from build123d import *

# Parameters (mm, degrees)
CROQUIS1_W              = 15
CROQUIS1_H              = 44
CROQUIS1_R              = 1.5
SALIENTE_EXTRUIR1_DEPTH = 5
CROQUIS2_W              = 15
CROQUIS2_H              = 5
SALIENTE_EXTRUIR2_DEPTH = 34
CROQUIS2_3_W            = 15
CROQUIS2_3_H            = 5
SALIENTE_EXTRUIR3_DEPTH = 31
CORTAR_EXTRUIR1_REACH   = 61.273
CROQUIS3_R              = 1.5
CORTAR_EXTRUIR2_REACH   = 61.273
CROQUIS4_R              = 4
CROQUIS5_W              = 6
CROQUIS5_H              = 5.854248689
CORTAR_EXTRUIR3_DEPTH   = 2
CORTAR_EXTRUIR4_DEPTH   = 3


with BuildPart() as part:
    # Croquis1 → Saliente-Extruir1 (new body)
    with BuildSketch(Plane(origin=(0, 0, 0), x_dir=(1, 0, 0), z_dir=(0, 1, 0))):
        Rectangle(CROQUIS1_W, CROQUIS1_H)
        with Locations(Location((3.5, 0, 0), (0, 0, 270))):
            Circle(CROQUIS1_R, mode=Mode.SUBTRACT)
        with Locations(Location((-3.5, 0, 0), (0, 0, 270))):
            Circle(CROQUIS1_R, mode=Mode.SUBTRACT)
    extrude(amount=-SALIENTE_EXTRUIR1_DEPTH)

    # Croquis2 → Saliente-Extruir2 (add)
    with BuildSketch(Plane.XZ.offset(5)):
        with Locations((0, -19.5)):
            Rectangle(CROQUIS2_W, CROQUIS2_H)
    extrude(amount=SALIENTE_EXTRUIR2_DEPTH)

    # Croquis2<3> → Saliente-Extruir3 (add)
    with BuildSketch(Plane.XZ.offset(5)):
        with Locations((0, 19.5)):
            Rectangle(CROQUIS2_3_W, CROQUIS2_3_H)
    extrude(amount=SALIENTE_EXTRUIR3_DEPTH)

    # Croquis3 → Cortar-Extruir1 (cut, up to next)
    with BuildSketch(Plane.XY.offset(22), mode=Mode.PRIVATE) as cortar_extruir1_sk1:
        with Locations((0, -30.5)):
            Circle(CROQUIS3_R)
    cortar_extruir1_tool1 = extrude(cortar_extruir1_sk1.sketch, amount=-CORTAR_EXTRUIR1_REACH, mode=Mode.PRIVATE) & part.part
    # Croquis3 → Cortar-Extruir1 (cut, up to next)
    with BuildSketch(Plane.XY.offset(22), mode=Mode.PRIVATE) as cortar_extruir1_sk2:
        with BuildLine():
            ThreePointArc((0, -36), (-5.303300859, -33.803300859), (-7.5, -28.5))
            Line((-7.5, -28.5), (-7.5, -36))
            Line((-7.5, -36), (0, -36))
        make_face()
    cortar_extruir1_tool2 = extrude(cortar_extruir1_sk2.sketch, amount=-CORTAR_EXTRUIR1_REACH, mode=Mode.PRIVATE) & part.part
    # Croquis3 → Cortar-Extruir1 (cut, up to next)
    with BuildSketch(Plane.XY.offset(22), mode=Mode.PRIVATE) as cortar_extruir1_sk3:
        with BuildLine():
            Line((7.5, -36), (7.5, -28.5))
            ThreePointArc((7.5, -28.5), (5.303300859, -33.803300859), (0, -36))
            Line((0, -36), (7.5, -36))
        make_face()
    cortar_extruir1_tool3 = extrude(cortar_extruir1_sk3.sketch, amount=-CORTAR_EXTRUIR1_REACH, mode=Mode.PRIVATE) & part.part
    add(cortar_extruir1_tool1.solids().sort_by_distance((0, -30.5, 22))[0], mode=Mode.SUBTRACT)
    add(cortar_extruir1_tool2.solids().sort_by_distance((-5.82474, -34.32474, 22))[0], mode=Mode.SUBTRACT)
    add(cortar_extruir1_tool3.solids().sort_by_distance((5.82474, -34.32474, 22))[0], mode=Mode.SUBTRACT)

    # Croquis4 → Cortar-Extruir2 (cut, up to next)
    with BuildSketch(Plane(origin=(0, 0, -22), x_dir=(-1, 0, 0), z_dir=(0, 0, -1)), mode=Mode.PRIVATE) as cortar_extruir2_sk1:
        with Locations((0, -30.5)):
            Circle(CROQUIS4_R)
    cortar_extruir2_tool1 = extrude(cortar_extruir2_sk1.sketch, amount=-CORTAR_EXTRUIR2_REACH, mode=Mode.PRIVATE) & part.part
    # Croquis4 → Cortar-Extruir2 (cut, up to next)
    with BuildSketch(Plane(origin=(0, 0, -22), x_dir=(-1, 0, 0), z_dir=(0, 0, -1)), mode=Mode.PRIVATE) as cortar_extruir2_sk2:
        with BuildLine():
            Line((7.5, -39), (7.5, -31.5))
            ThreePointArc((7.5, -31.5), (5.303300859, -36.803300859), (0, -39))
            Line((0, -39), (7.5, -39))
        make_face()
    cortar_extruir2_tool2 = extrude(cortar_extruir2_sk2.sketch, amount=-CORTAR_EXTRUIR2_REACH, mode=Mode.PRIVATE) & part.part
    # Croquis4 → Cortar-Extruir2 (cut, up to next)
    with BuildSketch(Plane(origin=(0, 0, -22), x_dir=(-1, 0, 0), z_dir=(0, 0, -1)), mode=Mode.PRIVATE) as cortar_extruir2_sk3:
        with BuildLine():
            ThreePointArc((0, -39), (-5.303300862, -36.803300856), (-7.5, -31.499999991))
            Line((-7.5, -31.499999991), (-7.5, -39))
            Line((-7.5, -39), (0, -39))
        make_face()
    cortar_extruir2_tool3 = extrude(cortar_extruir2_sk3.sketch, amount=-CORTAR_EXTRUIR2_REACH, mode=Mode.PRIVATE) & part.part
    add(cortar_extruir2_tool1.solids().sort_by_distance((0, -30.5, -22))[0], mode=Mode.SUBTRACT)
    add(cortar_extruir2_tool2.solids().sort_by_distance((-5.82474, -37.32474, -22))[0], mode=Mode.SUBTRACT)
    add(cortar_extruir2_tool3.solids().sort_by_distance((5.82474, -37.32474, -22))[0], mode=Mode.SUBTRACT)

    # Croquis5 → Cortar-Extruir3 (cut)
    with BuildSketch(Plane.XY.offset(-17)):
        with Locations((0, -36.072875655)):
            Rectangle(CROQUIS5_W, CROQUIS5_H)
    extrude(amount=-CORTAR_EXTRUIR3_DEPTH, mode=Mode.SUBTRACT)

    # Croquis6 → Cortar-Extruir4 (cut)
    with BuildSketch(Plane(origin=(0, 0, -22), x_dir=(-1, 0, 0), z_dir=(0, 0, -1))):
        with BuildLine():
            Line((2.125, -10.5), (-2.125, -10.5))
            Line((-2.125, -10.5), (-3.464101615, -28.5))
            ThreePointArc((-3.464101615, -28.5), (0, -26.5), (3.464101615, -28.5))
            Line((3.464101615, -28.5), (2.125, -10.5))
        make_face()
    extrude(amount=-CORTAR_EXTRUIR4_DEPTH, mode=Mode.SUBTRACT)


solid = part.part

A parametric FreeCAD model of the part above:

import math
import FreeCAD as App
import Part
import Sketcher

V = App.Vector

doc = App.newDocument("Part")
body = doc.addObject("PartDesign::Body", "Body")

sketch1 = body.newObject("Sketcher::SketchObject", "Sketch")
sketch1.AttachmentSupport = (doc.getObject("XZ_Plane"), [""])
sketch1.MapMode = "FlatFace"
sketch1.addGeometry(Part.LineSegment(V(-7.5, -22, 0), V(-7.5, 22, 0)), False)
sketch1.addGeometry(Part.LineSegment(V(-7.5, 22, 0), V(7.5, 22, 0)), False)
sketch1.addGeometry(Part.LineSegment(V(7.5, 22, 0), V(7.5, -22, 0)), False)
sketch1.addGeometry(Part.LineSegment(V(7.5, -22, 0), V(-7.5, -22, 0)), False)
sketch1.addGeometry(Part.Circle(V(-3.5, 0, 0), V(0, 0, 1), 1.5), False)
sketch1.addGeometry(Part.Circle(V(3.5, 0, 0), V(0, 0, 1), 1.5), False)
sketch1.addConstraint(Sketcher.Constraint("Coincident", 0, 2, 1, 1))
sketch1.addConstraint(Sketcher.Constraint("Coincident", 1, 2, 2, 1))
sketch1.addConstraint(Sketcher.Constraint("Coincident", 2, 2, 3, 1))
sketch1.addConstraint(Sketcher.Constraint("Coincident", 3, 2, 0, 1))
sketch1.addConstraint(Sketcher.Constraint("Vertical", 0))
sketch1.addConstraint(Sketcher.Constraint("Horizontal", 1))
sketch1.addConstraint(Sketcher.Constraint("Vertical", 2))
sketch1.addConstraint(Sketcher.Constraint("Horizontal", 3))
sketch1.addConstraint(Sketcher.Constraint("Equal", 4, 5))
sketch1.addConstraint(Sketcher.Constraint("Symmetric", 4, 3, 5, 3, -1, 1))
sketch1.addConstraint(Sketcher.Constraint("Symmetric", 0, 2, 2, 2, -1, 1))
sketch1.addConstraint(Sketcher.Constraint("PointOnObject", 4, 3, -1))
sketch1.addConstraint(Sketcher.Constraint("Diameter", 4, 3.0))
sketch1.addConstraint(Sketcher.Constraint("DistanceX", 1, 1, 1, 2, 15.0))
sketch1.addConstraint(Sketcher.Constraint("DistanceY", 0, 1, 0, 2, 44.0))
sketch1.addConstraint(Sketcher.Constraint("DistanceX", 4, 3, 5, 3, 7.0))
pad1 = body.newObject("PartDesign::Pad", "Pad")
pad1.Profile = sketch1
pad1.Length = 5

sketch2 = body.newObject("Sketcher::SketchObject", "Sketch001")
sketch2.AttachmentSupport = (doc.getObject("XZ_Plane"), [""])
sketch2.MapMode = "FlatFace"
sketch2.AttachmentOffset = App.Placement(V(0, 0, 5), App.Rotation())
sketch2.addGeometry(Part.LineSegment(V(-7.5, -17, 0), V(-7.5, -22, 0)), False)
sketch2.addGeometry(Part.LineSegment(V(-7.5, -22, 0), V(7.5, -22, 0)), False)
sketch2.addGeometry(Part.LineSegment(V(7.5, -22, 0), V(7.5, -17, 0)), False)
sketch2.addGeometry(Part.LineSegment(V(7.5, -17, 0), V(-7.5, -17, 0)), False)
sketch2.addConstraint(Sketcher.Constraint("Coincident", 0, 2, 1, 1))
sketch2.addConstraint(Sketcher.Constraint("Coincident", 1, 2, 2, 1))
sketch2.addConstraint(Sketcher.Constraint("Coincident", 2, 2, 3, 1))
sketch2.addConstraint(Sketcher.Constraint("Coincident", 3, 2, 0, 1))
sketch2.addConstraint(Sketcher.Constraint("Vertical", 0))
sketch2.addConstraint(Sketcher.Constraint("Horizontal", 1))
sketch2.addConstraint(Sketcher.Constraint("Vertical", 2))
sketch2.addConstraint(Sketcher.Constraint("Horizontal", 3))
sketch2.addConstraint(Sketcher.Constraint("DistanceX", 1, 1, 1, 2, 15.0))
sketch2.addConstraint(Sketcher.Constraint("DistanceY", 0, 2, 0, 1, 5.0))
sketch2.addConstraint(Sketcher.Constraint("DistanceY", 0, 2, -1, 1, 22.0))
sketch2.addConstraint(Sketcher.Constraint("DistanceX", 0, 2, -1, 1, 7.5))
pad2 = body.newObject("PartDesign::Pad", "Pad001")
pad2.Profile = sketch2
pad2.Length = 34

sketch3 = body.newObject("Sketcher::SketchObject", "Sketch002")
sketch3.AttachmentSupport = (doc.getObject("XZ_Plane"), [""])
sketch3.MapMode = "FlatFace"
sketch3.AttachmentOffset = App.Placement(V(0, 0, 5), App.Rotation())
sketch3.addGeometry(Part.LineSegment(V(-7.5, 22, 0), V(-7.5, 17, 0)), False)
sketch3.addGeometry(Part.LineSegment(V(-7.5, 17, 0), V(7.5, 17, 0)), False)
sketch3.addGeometry(Part.LineSegment(V(7.5, 17, 0), V(7.5, 22, 0)), False)
sketch3.addGeometry(Part.LineSegment(V(7.5, 22, 0), V(-7.5, 22, 0)), False)
sketch3.addConstraint(Sketcher.Constraint("Coincident", 0, 2, 1, 1))
sketch3.addConstraint(Sketcher.Constraint("Coincident", 1, 2, 2, 1))
sketch3.addConstraint(Sketcher.Constraint("Coincident", 2, 2, 3, 1))
sketch3.addConstraint(Sketcher.Constraint("Coincident", 3, 2, 0, 1))
sketch3.addConstraint(Sketcher.Constraint("Vertical", 0))
sketch3.addConstraint(Sketcher.Constraint("Horizontal", 1))
sketch3.addConstraint(Sketcher.Constraint("Vertical", 2))
sketch3.addConstraint(Sketcher.Constraint("Horizontal", 3))
sketch3.addConstraint(Sketcher.Constraint("DistanceX", 1, 1, 1, 2, 15.0))
sketch3.addConstraint(Sketcher.Constraint("DistanceY", 0, 2, 0, 1, 5.0))
sketch3.addConstraint(Sketcher.Constraint("DistanceY", -1, 1, 0, 2, 17.0))
sketch3.addConstraint(Sketcher.Constraint("DistanceX", 0, 2, -1, 1, 7.5))
pad3 = body.newObject("PartDesign::Pad", "Pad002")
pad3.Profile = sketch3
pad3.Length = 31

sketch4 = body.newObject("Sketcher::SketchObject", "Sketch003")
sketch4.AttachmentSupport = (doc.getObject("XY_Plane"), [""])
sketch4.MapMode = "FlatFace"
sketch4.AttachmentOffset = App.Placement(V(0, 0, 22), App.Rotation())
sketch4.addGeometry(Part.Circle(V(0, -30.5, 0), V(0, 0, 1), 1.5), False)
sketch4.addConstraint(Sketcher.Constraint("PointOnObject", 0, 3, -2))
sketch4.addConstraint(Sketcher.Constraint("Diameter", 0, 3.0))
sketch4.addConstraint(Sketcher.Constraint("DistanceY", 0, 3, -1, 1, 30.5))
pocket1 = body.newObject("PartDesign::Pocket", "Pocket")
pocket1.Profile = sketch4
pocket1.Type = "UpToFirst"

sketch5 = body.newObject("Sketcher::SketchObject", "Sketch004")
sketch5.AttachmentSupport = (doc.getObject("XY_Plane"), [""])
sketch5.MapMode = "FlatFace"
sketch5.AttachmentOffset = App.Placement(V(0, 0, 22), App.Rotation())
sketch5.addGeometry(Part.ArcOfCircle(Part.Circle(V(0, -28.5, 0), V(0, 0, 1), 7.5), math.radians(180), math.radians(270)), False)
sketch5.addGeometry(Part.LineSegment(V(-7.5, -28.5, 0), V(-7.5, -36, 0)), False)
sketch5.addGeometry(Part.LineSegment(V(-7.5, -36, 0), V(0, -36, 0)), False)
sketch5.addConstraint(Sketcher.Constraint("Tangent", 0, 1, 1, 1))
sketch5.addConstraint(Sketcher.Constraint("Coincident", 1, 2, 2, 1))
sketch5.addConstraint(Sketcher.Constraint("Tangent", 2, 2, 0, 2))
sketch5.addConstraint(Sketcher.Constraint("Vertical", 1))
sketch5.addConstraint(Sketcher.Constraint("Horizontal", 2))
sketch5.addConstraint(Sketcher.Constraint("PointOnObject", 0, 3, -2))
sketch5.addConstraint(Sketcher.Constraint("Radius", 0, 7.5))
sketch5.addConstraint(Sketcher.Constraint("DistanceY", 1, 2, -1, 1, 36.0))
pocket2 = body.newObject("PartDesign::Pocket", "Pocket001")
pocket2.Profile = sketch5
pocket2.Type = "UpToFirst"

sketch6 = body.newObject("Sketcher::SketchObject", "Sketch005")
sketch6.AttachmentSupport = (doc.getObject("XY_Plane"), [""])
sketch6.MapMode = "FlatFace"
sketch6.AttachmentOffset = App.Placement(V(0, 0, 22), App.Rotation())
sketch6.addGeometry(Part.LineSegment(V(7.5, -36, 0), V(7.5, -28.5, 0)), False)
sketch6.addGeometry(Part.ArcOfCircle(Part.Circle(V(0, -28.5, 0), V(0, 0, 1), 7.5), math.radians(-90), math.radians(0)), False)
sketch6.addGeometry(Part.LineSegment(V(0, -36, 0), V(7.5, -36, 0)), False)
sketch6.addConstraint(Sketcher.Constraint("Tangent", 0, 2, 1, 2))
sketch6.addConstraint(Sketcher.Constraint("Tangent", 1, 1, 2, 1))
sketch6.addConstraint(Sketcher.Constraint("Coincident", 2, 2, 0, 1))
sketch6.addConstraint(Sketcher.Constraint("Vertical", 0))
sketch6.addConstraint(Sketcher.Constraint("Horizontal", 2))
sketch6.addConstraint(Sketcher.Constraint("PointOnObject", 1, 3, -2))
sketch6.addConstraint(Sketcher.Constraint("Radius", 1, 7.5))
sketch6.addConstraint(Sketcher.Constraint("DistanceY", 1, 1, -1, 1, 36.0))
pocket3 = body.newObject("PartDesign::Pocket", "Pocket002")
pocket3.Profile = sketch6
pocket3.Type = "UpToFirst"

sketch7 = body.newObject("Sketcher::SketchObject", "Sketch006")
sketch7.AttachmentSupport = (doc.getObject("XY_Plane"), [""])
sketch7.MapMode = "FlatFace"
sketch7.AttachmentOffset = App.Placement(V(0, 0, -22), App.Rotation())
sketch7.addGeometry(Part.Circle(V(0, -30.5, 0), V(0, 0, 1), 4), False)
sketch7.addConstraint(Sketcher.Constraint("PointOnObject", 0, 3, -2))
sketch7.addConstraint(Sketcher.Constraint("Diameter", 0, 8.0))
sketch7.addConstraint(Sketcher.Constraint("DistanceY", 0, 3, -1, 1, 30.5))
pocket4 = body.newObject("PartDesign::Pocket", "Pocket003")
pocket4.Profile = sketch7
pocket4.Type = "UpToFirst"
pocket4.Reversed = True

sketch8 = body.newObject("Sketcher::SketchObject", "Sketch007")
sketch8.AttachmentSupport = (doc.getObject("XY_Plane"), [""])
sketch8.MapMode = "FlatFace"
sketch8.AttachmentOffset = App.Placement(V(0, 0, -22), App.Rotation())
sketch8.addGeometry(Part.LineSegment(V(-7.5, -39, 0), V(-7.5, -31.5, 0)), False)
sketch8.addGeometry(Part.ArcOfCircle(Part.Circle(V(0, -31.5, 0), V(0, 0, 1), 7.5), math.radians(180), math.radians(270)), False)
sketch8.addGeometry(Part.LineSegment(V(0, -39, 0), V(-7.5, -39, 0)), False)
sketch8.addConstraint(Sketcher.Constraint("Tangent", 0, 2, 1, 1))
sketch8.addConstraint(Sketcher.Constraint("Tangent", 1, 2, 2, 1))
sketch8.addConstraint(Sketcher.Constraint("Coincident", 2, 2, 0, 1))
sketch8.addConstraint(Sketcher.Constraint("Vertical", 0))
sketch8.addConstraint(Sketcher.Constraint("Horizontal", 2))
sketch8.addConstraint(Sketcher.Constraint("PointOnObject", 1, 3, -2))
sketch8.addConstraint(Sketcher.Constraint("Radius", 1, 7.5))
sketch8.addConstraint(Sketcher.Constraint("DistanceY", 1, 2, -1, 1, 39.0))
pocket5 = body.newObject("PartDesign::Pocket", "Pocket004")
pocket5.Profile = sketch8
pocket5.Type = "UpToFirst"
pocket5.Reversed = True

sketch9 = body.newObject("Sketcher::SketchObject", "Sketch008")
sketch9.AttachmentSupport = (doc.getObject("XY_Plane"), [""])
sketch9.MapMode = "FlatFace"
sketch9.AttachmentOffset = App.Placement(V(0, 0, -22), App.Rotation())
sketch9.addGeometry(Part.ArcOfCircle(Part.Circle(V(0, -31.5, 0), V(0, 0, 1), 7.5), math.radians(-90), math.radians(0)), False)
sketch9.addGeometry(Part.LineSegment(V(7.5, -31.5, 0), V(7.5, -39, 0)), False)
sketch9.addGeometry(Part.LineSegment(V(7.5, -39, 0), V(0, -39, 0)), False)
sketch9.addConstraint(Sketcher.Constraint("Tangent", 0, 2, 1, 1))
sketch9.addConstraint(Sketcher.Constraint("Coincident", 1, 2, 2, 1))
sketch9.addConstraint(Sketcher.Constraint("Tangent", 2, 2, 0, 1))
sketch9.addConstraint(Sketcher.Constraint("Vertical", 1))
sketch9.addConstraint(Sketcher.Constraint("Horizontal", 2))
sketch9.addConstraint(Sketcher.Constraint("PointOnObject", 0, 3, -2))
sketch9.addConstraint(Sketcher.Constraint("Radius", 0, 7.5))
sketch9.addConstraint(Sketcher.Constraint("DistanceY", 1, 2, -1, 1, 39.0))
pocket6 = body.newObject("PartDesign::Pocket", "Pocket005")
pocket6.Profile = sketch9
pocket6.Type = "UpToFirst"
pocket6.Reversed = True

sketch10 = body.newObject("Sketcher::SketchObject", "Sketch009")
sketch10.AttachmentSupport = (doc.getObject("XY_Plane"), [""])
sketch10.MapMode = "FlatFace"
sketch10.AttachmentOffset = App.Placement(V(0, 0, -17), App.Rotation())
sketch10.addGeometry(Part.LineSegment(V(-3, -33.145751, 0), V(-3, -39, 0)), False)
sketch10.addGeometry(Part.LineSegment(V(-3, -39, 0), V(3, -39, 0)), False)
sketch10.addGeometry(Part.LineSegment(V(3, -39, 0), V(3, -33.145751, 0)), False)
sketch10.addGeometry(Part.LineSegment(V(3, -33.145751, 0), V(-3, -33.145751, 0)), False)
sketch10.addConstraint(Sketcher.Constraint("Coincident", 0, 2, 1, 1))
sketch10.addConstraint(Sketcher.Constraint("Coincident", 1, 2, 2, 1))
sketch10.addConstraint(Sketcher.Constraint("Coincident", 2, 2, 3, 1))
sketch10.addConstraint(Sketcher.Constraint("Coincident", 3, 2, 0, 1))
sketch10.addConstraint(Sketcher.Constraint("Vertical", 0))
sketch10.addConstraint(Sketcher.Constraint("Horizontal", 1))
sketch10.addConstraint(Sketcher.Constraint("Vertical", 2))
sketch10.addConstraint(Sketcher.Constraint("Horizontal", 3))
sketch10.addConstraint(Sketcher.Constraint("DistanceX", 1, 1, 1, 2, 6.0))
sketch10.addConstraint(Sketcher.Constraint("DistanceX", 0, 2, -1, 1, 3.0))
sketch10.addConstraint(Sketcher.Constraint("DistanceY", 0, 2, -1, 1, 39.0))
sketch10.addConstraint(Sketcher.Constraint("DistanceY", 0, 2, 0, 1, 5.854249))
pocket7 = body.newObject("PartDesign::Pocket", "Pocket006")
pocket7.Profile = sketch10
pocket7.Length = 2

sketch11 = body.newObject("Sketcher::SketchObject", "Sketch010")
sketch11.AttachmentSupport = (doc.getObject("XY_Plane"), [""])
sketch11.MapMode = "FlatFace"
sketch11.AttachmentOffset = App.Placement(V(0, 0, -22), App.Rotation())
sketch11.addGeometry(Part.LineSegment(V(-2.125, -10.5, 0), V(2.125, -10.5, 0)), False)
sketch11.addGeometry(Part.LineSegment(V(2.125, -10.5, 0), V(3.464102, -28.5, 0)), False)
sketch11.addGeometry(Part.ArcOfCircle(Part.Circle(V(0, -30.5, 0), V(0, 0, 1), 4), math.radians(30), math.radians(150)), False)
sketch11.addGeometry(Part.LineSegment(V(-3.464102, -28.5, 0), V(-2.125, -10.5, 0)), False)
sketch11.addConstraint(Sketcher.Constraint("Coincident", 0, 2, 1, 1))
sketch11.addConstraint(Sketcher.Constraint("Coincident", 1, 2, 2, 1))
sketch11.addConstraint(Sketcher.Constraint("Coincident", 2, 2, 3, 1))
sketch11.addConstraint(Sketcher.Constraint("Coincident", 3, 2, 0, 1))
sketch11.addConstraint(Sketcher.Constraint("Horizontal", 0))
sketch11.addConstraint(Sketcher.Constraint("Symmetric", 1, 2, 2, 2, -2))
sketch11.addConstraint(Sketcher.Constraint("Equal", 1, 3))
sketch11.addConstraint(Sketcher.Constraint("Radius", 2, 4.0))
sketch11.addConstraint(Sketcher.Constraint("DistanceY", 2, 3, 0, 2, 20.0))
sketch11.addConstraint(Sketcher.Constraint("DistanceY", 2, 3, 1, 2, 2.0))
sketch11.addConstraint(Sketcher.Constraint("DistanceX", 0, 1, 0, 2, 4.25))
sketch11.addConstraint(Sketcher.Constraint("DistanceY", 2, 3, -1, 1, 30.5))
pocket8 = body.newObject("PartDesign::Pocket", "Pocket007")
pocket8.Profile = sketch11
pocket8.Length = 3
pocket8.Reversed = True

doc.recompute()
